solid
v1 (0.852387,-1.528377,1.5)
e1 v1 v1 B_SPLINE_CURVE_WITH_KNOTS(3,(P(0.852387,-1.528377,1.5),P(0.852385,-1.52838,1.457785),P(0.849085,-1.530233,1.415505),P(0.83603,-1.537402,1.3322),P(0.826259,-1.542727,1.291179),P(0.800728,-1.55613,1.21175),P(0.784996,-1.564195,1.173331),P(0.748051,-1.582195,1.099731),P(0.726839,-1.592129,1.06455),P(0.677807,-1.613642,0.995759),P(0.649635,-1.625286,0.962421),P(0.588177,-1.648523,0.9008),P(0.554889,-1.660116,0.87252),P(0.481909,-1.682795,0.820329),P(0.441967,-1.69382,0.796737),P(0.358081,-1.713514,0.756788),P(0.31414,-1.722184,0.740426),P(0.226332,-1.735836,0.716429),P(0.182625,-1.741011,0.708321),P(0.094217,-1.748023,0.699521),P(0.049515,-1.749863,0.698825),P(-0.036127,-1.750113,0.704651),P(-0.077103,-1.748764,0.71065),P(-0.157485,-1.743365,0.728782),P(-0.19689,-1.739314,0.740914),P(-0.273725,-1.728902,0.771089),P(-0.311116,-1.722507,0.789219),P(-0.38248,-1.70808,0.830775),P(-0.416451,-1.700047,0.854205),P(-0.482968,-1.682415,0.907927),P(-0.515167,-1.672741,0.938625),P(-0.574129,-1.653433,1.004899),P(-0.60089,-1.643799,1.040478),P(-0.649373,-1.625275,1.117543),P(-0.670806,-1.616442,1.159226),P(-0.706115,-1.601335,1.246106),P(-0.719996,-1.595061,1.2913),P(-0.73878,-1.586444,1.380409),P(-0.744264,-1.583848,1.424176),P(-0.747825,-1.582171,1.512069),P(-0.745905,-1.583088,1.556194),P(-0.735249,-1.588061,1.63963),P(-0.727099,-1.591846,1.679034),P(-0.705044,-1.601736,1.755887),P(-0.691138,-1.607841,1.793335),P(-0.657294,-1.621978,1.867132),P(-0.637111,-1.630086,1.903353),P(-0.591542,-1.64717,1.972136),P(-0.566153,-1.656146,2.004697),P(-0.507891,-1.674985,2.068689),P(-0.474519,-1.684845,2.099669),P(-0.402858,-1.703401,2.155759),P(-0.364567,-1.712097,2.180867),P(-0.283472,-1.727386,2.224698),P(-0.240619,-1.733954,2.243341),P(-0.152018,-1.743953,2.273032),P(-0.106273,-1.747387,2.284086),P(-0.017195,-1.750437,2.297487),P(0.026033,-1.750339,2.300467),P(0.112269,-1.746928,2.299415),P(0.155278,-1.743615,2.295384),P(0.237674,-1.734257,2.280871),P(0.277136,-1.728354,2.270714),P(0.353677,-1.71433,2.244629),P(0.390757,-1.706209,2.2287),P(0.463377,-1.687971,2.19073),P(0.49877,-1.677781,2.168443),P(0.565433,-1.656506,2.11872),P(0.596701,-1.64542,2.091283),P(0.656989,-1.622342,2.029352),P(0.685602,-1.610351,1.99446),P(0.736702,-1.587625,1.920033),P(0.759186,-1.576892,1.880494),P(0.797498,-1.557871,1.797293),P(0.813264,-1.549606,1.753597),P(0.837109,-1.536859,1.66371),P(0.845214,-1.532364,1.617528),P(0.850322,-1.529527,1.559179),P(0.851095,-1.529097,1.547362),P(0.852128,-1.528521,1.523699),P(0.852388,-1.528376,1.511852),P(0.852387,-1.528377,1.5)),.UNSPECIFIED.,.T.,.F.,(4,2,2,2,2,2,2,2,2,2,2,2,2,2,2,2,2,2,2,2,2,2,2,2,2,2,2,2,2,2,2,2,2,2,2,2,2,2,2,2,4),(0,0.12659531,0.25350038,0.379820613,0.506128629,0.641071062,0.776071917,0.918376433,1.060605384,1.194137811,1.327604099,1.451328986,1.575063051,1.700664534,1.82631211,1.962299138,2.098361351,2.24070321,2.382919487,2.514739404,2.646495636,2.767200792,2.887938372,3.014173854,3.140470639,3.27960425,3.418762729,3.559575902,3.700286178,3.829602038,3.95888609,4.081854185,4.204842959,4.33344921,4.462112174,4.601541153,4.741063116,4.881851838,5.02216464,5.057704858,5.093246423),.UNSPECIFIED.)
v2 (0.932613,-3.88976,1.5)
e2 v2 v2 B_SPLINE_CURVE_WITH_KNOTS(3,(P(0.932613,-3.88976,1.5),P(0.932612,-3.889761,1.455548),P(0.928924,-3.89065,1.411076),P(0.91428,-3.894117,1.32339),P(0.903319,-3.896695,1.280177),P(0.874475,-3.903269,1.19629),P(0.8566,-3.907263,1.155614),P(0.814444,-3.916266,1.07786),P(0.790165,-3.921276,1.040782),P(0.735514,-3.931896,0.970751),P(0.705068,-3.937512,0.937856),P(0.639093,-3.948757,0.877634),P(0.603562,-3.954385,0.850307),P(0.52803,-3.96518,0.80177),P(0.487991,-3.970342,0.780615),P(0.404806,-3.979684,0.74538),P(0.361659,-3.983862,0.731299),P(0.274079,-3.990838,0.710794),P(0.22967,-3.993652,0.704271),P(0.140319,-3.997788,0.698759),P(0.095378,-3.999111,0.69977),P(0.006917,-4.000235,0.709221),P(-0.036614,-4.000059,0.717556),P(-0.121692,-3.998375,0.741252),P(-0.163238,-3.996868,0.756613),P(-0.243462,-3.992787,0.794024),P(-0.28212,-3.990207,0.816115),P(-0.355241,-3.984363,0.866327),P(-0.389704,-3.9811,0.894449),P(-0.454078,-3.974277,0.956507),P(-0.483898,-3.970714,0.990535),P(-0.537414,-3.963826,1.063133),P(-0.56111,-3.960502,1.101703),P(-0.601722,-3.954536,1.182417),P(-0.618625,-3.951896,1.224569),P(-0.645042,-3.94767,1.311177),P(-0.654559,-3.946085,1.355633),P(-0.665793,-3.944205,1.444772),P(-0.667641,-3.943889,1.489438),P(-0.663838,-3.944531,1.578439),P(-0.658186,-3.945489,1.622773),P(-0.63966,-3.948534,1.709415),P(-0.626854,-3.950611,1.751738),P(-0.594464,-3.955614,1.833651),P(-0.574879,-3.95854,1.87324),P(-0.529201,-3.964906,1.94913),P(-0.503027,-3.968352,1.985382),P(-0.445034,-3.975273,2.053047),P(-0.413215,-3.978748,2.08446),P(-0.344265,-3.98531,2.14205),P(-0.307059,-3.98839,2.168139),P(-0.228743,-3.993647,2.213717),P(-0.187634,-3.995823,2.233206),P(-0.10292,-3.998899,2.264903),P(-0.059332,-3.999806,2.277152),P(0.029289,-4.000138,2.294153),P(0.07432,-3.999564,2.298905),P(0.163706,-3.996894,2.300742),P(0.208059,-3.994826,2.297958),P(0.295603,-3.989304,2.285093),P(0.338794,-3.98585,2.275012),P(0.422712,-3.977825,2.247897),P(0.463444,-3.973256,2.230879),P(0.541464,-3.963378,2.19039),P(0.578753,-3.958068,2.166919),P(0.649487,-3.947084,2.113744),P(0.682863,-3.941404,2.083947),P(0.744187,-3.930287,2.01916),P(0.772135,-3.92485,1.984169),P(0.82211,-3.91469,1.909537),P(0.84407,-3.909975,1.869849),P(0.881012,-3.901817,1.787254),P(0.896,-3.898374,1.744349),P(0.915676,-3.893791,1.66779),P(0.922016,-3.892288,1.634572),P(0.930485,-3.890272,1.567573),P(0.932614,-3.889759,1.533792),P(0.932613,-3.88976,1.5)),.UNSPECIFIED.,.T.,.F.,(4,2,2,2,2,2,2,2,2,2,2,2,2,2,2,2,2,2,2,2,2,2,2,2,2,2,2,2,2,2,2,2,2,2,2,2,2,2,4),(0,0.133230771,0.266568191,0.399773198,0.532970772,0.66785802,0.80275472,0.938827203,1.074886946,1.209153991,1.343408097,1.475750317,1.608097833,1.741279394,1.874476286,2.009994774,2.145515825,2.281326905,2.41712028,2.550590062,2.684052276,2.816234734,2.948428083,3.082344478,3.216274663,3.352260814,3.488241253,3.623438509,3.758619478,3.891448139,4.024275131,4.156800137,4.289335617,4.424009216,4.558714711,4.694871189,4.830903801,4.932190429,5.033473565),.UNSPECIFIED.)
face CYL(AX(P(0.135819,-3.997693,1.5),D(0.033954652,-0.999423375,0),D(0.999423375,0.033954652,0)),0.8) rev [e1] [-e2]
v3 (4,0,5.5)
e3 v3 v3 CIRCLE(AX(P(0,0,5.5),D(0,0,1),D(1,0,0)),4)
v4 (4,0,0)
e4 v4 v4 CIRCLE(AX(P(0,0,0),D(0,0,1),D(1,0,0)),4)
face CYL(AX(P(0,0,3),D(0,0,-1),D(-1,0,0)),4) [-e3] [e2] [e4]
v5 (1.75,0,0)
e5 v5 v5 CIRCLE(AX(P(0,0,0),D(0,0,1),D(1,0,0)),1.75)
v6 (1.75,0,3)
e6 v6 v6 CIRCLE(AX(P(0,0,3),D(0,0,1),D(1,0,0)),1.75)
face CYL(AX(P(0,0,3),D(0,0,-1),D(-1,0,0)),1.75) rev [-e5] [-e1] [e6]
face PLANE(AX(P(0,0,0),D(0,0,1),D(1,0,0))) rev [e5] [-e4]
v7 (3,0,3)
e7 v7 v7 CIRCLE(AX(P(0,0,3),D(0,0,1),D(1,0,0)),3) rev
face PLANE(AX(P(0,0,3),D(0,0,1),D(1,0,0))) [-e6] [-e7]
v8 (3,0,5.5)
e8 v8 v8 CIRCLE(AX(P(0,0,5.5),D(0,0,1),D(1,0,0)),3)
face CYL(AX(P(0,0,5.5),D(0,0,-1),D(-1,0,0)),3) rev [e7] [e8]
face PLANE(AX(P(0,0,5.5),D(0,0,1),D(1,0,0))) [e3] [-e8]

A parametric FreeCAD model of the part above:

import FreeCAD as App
import Part
import Sketcher

V = App.Vector
Q = App.Units.Quantity

doc = App.newDocument("Part")
body = doc.addObject("PartDesign::Body", "Body")

sketch1 = body.newObject("Sketcher::SketchObject", "Sketch")
sketch1.AttachmentSupport = (doc.getObject("XY_Plane"), [""])
sketch1.MapMode = "FlatFace"
sketch1.addGeometry([
    Part.Circle(V(0, 0, 0), V(0, 0, 1), 4),
    Part.Circle(V(0, 0, 0), V(0, 0, 1), 1.8),
], False)
sketch1.addConstraint([
    Sketcher.Constraint("Coincident", 0, 3, -1, 1),
    Sketcher.Constraint("Coincident", 1, 3, -1, 1),
    Sketcher.Constraint("Diameter", 0, Q("8 mm")),
    Sketcher.Constraint("Diameter", 1, Q("3.5 mm")),
])
pad1 = body.newObject("PartDesign::Pad", "Pad")
pad1.Profile = sketch1
pad1.Length = 3

sketch2 = body.newObject("Sketcher::SketchObject", "Sketch001")
sketch2.AttachmentSupport = (doc.getObject("XY_Plane"), [""])
sketch2.MapMode = "FlatFace"
sketch2.AttachmentOffset = App.Placement(V(0, 0, 3), App.Rotation())
sketch2.addGeometry([
    Part.Circle(V(0, 0, 0), V(0, 0, 1), 4),
    Part.Circle(V(0, 0, 0), V(0, 0, 1), 3),
], False)
sketch2.addConstraint([
    Sketcher.Constraint("Coincident", 0, 3, -1, 1),
    Sketcher.Constraint("Coincident", 1, 3, -1, 1),
    Sketcher.Constraint("Diameter", 0, Q("8 mm")),
    Sketcher.Constraint("Diameter", 1, Q("6 mm")),
])
pad2 = body.newObject("PartDesign::Pad", "Pad001")
pad2.Profile = sketch2
pad2.Length = 2.5

sketch3 = body.newObject("Sketcher::SketchObject", "Sketch002")
sketch3.Placement = App.Placement(V(0.135819, -3.997693, 1.5), App.Rotation(V(-0.999423375, -0.033954652, 0), V(0, 0, -1.000000001), V(0.033954652, -0.999423375, 0), "ZXY"))
sketch3.addGeometry(Part.Circle(V(0, 0, 0), V(0, 0, 1), 0.8), False)
sketch3.addConstraint([
    Sketcher.Constraint("Coincident", 0, 3, -1, 1),
    Sketcher.Constraint("Diameter", 0, Q("1.6 mm")),
])
pocket1 = body.newObject("PartDesign::Pocket", "Pocket")
pocket1.Profile = sketch3
pocket1.Length = 2.443562

doc.recompute()
